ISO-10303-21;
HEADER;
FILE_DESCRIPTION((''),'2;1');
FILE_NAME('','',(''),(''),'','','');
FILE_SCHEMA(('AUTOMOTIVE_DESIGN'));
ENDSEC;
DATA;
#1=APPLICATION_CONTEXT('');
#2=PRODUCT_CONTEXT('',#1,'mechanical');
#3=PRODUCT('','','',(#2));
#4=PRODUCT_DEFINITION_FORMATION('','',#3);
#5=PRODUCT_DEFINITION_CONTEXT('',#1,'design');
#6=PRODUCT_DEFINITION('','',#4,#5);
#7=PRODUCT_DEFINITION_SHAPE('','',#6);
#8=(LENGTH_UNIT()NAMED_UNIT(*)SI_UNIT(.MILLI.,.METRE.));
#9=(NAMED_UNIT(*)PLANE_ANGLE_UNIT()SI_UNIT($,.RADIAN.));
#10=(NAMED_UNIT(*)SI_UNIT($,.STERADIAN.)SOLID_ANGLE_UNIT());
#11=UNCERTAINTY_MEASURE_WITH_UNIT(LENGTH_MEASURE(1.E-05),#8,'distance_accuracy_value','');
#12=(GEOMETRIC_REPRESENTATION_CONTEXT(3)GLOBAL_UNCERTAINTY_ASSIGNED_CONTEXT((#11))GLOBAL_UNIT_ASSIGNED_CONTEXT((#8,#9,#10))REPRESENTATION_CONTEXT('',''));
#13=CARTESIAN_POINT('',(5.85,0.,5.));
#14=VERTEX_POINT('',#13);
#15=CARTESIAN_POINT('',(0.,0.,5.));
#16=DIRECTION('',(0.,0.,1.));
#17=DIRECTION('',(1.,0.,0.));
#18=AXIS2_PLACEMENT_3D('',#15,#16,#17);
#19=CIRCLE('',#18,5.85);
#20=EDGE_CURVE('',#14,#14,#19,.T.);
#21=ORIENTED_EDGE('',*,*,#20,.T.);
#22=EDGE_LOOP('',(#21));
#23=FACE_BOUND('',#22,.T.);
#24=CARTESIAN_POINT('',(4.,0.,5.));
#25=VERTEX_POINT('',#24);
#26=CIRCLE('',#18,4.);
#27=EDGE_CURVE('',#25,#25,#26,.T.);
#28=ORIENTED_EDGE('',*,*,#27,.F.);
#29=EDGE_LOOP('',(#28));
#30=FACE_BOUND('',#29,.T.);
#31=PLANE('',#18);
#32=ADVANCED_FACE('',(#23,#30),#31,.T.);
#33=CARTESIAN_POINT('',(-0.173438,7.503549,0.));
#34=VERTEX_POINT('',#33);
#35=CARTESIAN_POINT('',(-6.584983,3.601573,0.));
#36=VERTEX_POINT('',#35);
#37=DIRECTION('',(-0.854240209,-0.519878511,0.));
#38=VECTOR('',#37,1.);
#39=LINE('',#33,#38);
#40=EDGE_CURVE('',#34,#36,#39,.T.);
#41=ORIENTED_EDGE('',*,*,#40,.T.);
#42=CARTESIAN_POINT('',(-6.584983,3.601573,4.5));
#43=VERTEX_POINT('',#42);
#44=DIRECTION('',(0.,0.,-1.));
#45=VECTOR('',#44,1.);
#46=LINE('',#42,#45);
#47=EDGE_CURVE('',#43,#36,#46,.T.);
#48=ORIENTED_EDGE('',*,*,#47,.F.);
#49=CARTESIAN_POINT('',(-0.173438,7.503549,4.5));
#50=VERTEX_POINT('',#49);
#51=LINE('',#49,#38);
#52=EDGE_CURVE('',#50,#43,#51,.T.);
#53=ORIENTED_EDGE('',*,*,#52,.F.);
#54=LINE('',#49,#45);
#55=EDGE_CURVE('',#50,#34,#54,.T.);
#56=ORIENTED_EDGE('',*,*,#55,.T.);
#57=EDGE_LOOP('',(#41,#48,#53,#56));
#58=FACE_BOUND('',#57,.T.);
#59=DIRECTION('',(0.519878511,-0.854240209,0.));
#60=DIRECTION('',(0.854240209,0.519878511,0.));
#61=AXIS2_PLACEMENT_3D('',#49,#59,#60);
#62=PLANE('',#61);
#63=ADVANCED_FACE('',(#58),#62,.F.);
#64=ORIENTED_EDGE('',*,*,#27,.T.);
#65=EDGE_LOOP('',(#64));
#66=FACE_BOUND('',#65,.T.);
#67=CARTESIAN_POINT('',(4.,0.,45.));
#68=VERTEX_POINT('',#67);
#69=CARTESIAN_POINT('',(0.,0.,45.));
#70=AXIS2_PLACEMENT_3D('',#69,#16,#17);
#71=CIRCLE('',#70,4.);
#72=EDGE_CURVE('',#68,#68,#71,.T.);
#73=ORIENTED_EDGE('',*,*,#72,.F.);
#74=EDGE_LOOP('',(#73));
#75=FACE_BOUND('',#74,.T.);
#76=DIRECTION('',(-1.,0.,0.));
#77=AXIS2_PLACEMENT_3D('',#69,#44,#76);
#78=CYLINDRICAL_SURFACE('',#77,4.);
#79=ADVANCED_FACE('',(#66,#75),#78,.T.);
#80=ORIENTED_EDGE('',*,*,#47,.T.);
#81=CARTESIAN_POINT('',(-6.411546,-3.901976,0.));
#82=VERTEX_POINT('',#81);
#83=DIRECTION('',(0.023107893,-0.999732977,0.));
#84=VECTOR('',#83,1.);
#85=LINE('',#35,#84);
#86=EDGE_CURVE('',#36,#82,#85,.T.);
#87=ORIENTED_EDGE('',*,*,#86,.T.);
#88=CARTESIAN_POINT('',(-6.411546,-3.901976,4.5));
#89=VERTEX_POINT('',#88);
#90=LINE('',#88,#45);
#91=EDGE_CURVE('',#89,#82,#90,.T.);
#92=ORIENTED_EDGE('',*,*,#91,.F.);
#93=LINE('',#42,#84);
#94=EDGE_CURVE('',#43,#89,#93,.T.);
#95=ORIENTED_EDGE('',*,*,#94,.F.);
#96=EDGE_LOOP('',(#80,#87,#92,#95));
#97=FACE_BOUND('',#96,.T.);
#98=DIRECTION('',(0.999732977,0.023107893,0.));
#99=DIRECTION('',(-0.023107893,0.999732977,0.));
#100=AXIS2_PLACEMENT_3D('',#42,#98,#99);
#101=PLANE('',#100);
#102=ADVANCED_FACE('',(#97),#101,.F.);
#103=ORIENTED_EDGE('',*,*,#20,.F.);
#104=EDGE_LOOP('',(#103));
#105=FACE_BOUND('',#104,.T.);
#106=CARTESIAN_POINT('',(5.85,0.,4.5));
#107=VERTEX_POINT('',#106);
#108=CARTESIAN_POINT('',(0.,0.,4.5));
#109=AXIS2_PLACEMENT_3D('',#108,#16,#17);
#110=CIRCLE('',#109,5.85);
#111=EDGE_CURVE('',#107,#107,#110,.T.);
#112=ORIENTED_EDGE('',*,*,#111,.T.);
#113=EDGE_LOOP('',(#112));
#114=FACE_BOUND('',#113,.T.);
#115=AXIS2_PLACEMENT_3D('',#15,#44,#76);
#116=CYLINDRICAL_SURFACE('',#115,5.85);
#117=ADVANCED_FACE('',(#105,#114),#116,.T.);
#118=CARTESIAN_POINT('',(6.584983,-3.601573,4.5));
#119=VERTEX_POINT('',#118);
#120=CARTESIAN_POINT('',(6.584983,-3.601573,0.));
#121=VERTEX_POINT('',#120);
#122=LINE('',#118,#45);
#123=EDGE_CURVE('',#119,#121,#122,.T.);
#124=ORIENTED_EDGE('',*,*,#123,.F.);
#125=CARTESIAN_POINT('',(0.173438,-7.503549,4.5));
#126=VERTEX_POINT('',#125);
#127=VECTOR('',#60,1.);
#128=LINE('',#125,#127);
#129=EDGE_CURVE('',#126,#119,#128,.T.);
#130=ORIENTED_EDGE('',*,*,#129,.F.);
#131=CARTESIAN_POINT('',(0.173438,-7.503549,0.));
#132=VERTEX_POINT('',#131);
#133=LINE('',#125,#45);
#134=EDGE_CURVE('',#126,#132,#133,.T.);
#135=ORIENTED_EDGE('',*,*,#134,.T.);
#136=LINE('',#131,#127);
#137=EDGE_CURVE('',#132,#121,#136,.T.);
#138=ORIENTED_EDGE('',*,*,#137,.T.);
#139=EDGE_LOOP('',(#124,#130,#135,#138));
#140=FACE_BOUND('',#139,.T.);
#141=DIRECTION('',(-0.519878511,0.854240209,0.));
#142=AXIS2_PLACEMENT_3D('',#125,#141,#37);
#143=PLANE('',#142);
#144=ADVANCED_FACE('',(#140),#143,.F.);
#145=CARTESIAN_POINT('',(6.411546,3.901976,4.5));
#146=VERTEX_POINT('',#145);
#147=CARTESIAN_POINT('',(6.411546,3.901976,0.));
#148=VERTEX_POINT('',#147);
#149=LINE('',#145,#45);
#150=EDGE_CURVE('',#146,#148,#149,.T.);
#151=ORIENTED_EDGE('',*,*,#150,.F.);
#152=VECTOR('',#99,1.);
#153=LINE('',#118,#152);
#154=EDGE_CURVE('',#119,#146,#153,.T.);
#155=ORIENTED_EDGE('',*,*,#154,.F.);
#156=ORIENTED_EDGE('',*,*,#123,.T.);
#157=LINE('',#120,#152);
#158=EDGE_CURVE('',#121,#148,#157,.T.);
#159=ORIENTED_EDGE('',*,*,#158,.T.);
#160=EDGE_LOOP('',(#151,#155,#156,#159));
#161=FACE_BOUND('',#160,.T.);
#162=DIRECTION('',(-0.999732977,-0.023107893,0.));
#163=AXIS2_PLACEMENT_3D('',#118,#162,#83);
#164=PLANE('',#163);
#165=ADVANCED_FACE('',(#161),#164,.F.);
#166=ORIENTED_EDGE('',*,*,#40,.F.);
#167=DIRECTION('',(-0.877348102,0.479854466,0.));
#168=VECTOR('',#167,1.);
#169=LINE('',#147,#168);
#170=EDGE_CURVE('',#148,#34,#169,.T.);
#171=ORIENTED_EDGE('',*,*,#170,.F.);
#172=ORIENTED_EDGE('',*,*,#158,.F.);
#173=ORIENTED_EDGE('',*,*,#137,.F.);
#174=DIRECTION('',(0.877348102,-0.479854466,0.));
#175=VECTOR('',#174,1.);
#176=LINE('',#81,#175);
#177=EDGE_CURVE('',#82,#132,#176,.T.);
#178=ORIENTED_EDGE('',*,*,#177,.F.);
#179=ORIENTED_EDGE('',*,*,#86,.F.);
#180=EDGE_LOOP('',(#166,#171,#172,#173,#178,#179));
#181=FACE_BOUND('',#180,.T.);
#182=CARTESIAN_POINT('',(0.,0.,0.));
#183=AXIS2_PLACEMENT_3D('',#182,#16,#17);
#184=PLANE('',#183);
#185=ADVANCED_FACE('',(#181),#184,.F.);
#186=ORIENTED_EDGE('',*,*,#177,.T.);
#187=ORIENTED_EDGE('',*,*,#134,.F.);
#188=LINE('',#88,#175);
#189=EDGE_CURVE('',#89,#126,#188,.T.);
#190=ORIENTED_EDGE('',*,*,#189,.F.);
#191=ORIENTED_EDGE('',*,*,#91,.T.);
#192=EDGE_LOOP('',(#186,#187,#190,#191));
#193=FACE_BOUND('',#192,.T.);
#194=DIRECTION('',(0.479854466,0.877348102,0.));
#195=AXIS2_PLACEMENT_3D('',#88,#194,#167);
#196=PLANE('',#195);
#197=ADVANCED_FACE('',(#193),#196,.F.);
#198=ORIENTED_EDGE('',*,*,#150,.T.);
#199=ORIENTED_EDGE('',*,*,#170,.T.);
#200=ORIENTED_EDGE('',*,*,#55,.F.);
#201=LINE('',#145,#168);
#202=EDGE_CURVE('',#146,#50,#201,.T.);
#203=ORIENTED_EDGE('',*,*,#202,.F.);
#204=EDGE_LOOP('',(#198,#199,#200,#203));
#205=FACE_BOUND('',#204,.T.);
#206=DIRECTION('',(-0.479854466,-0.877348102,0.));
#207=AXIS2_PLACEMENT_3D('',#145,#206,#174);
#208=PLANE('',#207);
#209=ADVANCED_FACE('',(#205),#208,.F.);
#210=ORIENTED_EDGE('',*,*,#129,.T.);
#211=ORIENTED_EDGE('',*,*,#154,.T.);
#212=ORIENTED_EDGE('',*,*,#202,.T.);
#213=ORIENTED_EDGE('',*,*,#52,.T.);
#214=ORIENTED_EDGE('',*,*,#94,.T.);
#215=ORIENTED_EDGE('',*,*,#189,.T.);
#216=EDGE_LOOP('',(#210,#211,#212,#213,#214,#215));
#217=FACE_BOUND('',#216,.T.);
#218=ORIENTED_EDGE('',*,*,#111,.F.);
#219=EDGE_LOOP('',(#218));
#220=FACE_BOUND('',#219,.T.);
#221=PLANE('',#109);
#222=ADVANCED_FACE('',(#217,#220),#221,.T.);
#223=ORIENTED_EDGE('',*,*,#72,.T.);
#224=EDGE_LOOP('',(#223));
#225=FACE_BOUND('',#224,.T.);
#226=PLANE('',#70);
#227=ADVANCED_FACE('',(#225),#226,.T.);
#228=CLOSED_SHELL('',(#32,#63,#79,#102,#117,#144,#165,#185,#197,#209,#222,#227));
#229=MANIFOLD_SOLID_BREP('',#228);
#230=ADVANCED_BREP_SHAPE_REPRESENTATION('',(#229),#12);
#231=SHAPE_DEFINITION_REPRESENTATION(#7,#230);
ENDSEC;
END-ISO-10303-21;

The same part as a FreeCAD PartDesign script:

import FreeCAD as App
import Part
import Sketcher
from FreeCAD import Vector
Q = App.Units.Quantity

doc = App.newDocument("Part")
body = doc.addObject("PartDesign::Body", "Body")

sketch1 = body.newObject("Sketcher::SketchObject", "Sketch")
sketch1.AttachmentSupport = (doc.getObject("XY_Plane"), [""])
sketch1.MapMode = "FlatFace"
sketch1.addGeometry([
    Part.LineSegment(Vector(-6.411546, -3.901976, 0), Vector(0.173438, -7.503549, 0)),
    Part.LineSegment(Vector(0.173438, -7.503549, 0), Vector(6.584983, -3.601573, 0)),
    Part.LineSegment(Vector(6.584983, -3.601573, 0), Vector(6.411546, 3.901976, 0)),
    Part.LineSegment(Vector(6.411546, 3.901976, 0), Vector(-0.173438, 7.503549, 0)),
    Part.LineSegment(Vector(-0.173438, 7.503549, 0), Vector(-6.584983, 3.601573, 0)),
    Part.LineSegment(Vector(-6.584983, 3.601573, 0), Vector(-6.411546, -3.901976, 0)),
], False)
sketch1.addConstraint([
    Sketcher.Constraint("Coincident", 0, 2, 1, 1),
    Sketcher.Constraint("Coincident", 1, 2, 2, 1),
    Sketcher.Constraint("Coincident", 2, 2, 3, 1),
    Sketcher.Constraint("Coincident", 3, 2, 4, 1),
    Sketcher.Constraint("Coincident", 4, 2, 5, 1),
    Sketcher.Constraint("Coincident", 5, 2, 0, 1),
    Sketcher.Constraint("Symmetric", 0, 2, 3, 2, -1, 1),
    Sketcher.Constraint("Symmetric", 1, 2, 4, 2, -1, 1),
    Sketcher.Constraint("Symmetric", 2, 2, 5, 2, -1, 1),
    Sketcher.Constraint("Equal", 0, 1),
    Sketcher.Constraint("Equal", 1, 2),
    Sketcher.Constraint("DistanceY", 0, 2, 3, 2, Q("15.007099 mm")),
    Sketcher.Constraint("DistanceY", 1, 2, 2, 2, Q("7.503549 mm")),
    Sketcher.Constraint("DistanceX", 0, 2, 2, 2, Q("6.238108 mm")),
    Sketcher.Constraint("DistanceX", 3, 2, 1, 2, Q("6.758421 mm")),
])
pad1 = body.newObject("PartDesign::Pad", "Pad")
pad1.Profile = sketch1
pad1.Length = 4.5

sketch2 = body.newObject("Sketcher::SketchObject", "Sketch001")
sketch2.AttachmentSupport = (doc.getObject("XY_Plane"), [""])
sketch2.MapMode = "FlatFace"
sketch2.AttachmentOffset = App.Placement(Vector(0, 0, 4.5), App.Rotation())
sketch2.addGeometry(Part.Circle(Vector(0, 0, 0), Vector(0, 0, 1), 6), False)
sketch2.addConstraint([
    Sketcher.Constraint("Coincident", 0, 3, -1, 1),
    Sketcher.Constraint("Diameter", 0, Q("11.7 mm")),
])
pad2 = body.newObject("PartDesign::Pad", "Pad001")
pad2.Profile = sketch2
pad2.Length = 0.5

sketch3 = body.newObject("Sketcher::SketchObject", "Sketch002")
sketch3.AttachmentSupport = (doc.getObject("XY_Plane"), [""])
sketch3.MapMode = "FlatFace"
sketch3.AttachmentOffset = App.Placement(Vector(0, 0, 5), App.Rotation())
sketch3.addGeometry(Part.Circle(Vector(0, 0, 0), Vector(0, 0, 1), 4), False)
sketch3.addConstraint([
    Sketcher.Constraint("Coincident", 0, 3, -1, 1),
    Sketcher.Constraint("Diameter", 0, Q("8 mm")),
])
pad3 = body.newObject("PartDesign::Pad", "Pad002")
pad3.Profile = sketch3
pad3.Length = 40

doc.recompute()
